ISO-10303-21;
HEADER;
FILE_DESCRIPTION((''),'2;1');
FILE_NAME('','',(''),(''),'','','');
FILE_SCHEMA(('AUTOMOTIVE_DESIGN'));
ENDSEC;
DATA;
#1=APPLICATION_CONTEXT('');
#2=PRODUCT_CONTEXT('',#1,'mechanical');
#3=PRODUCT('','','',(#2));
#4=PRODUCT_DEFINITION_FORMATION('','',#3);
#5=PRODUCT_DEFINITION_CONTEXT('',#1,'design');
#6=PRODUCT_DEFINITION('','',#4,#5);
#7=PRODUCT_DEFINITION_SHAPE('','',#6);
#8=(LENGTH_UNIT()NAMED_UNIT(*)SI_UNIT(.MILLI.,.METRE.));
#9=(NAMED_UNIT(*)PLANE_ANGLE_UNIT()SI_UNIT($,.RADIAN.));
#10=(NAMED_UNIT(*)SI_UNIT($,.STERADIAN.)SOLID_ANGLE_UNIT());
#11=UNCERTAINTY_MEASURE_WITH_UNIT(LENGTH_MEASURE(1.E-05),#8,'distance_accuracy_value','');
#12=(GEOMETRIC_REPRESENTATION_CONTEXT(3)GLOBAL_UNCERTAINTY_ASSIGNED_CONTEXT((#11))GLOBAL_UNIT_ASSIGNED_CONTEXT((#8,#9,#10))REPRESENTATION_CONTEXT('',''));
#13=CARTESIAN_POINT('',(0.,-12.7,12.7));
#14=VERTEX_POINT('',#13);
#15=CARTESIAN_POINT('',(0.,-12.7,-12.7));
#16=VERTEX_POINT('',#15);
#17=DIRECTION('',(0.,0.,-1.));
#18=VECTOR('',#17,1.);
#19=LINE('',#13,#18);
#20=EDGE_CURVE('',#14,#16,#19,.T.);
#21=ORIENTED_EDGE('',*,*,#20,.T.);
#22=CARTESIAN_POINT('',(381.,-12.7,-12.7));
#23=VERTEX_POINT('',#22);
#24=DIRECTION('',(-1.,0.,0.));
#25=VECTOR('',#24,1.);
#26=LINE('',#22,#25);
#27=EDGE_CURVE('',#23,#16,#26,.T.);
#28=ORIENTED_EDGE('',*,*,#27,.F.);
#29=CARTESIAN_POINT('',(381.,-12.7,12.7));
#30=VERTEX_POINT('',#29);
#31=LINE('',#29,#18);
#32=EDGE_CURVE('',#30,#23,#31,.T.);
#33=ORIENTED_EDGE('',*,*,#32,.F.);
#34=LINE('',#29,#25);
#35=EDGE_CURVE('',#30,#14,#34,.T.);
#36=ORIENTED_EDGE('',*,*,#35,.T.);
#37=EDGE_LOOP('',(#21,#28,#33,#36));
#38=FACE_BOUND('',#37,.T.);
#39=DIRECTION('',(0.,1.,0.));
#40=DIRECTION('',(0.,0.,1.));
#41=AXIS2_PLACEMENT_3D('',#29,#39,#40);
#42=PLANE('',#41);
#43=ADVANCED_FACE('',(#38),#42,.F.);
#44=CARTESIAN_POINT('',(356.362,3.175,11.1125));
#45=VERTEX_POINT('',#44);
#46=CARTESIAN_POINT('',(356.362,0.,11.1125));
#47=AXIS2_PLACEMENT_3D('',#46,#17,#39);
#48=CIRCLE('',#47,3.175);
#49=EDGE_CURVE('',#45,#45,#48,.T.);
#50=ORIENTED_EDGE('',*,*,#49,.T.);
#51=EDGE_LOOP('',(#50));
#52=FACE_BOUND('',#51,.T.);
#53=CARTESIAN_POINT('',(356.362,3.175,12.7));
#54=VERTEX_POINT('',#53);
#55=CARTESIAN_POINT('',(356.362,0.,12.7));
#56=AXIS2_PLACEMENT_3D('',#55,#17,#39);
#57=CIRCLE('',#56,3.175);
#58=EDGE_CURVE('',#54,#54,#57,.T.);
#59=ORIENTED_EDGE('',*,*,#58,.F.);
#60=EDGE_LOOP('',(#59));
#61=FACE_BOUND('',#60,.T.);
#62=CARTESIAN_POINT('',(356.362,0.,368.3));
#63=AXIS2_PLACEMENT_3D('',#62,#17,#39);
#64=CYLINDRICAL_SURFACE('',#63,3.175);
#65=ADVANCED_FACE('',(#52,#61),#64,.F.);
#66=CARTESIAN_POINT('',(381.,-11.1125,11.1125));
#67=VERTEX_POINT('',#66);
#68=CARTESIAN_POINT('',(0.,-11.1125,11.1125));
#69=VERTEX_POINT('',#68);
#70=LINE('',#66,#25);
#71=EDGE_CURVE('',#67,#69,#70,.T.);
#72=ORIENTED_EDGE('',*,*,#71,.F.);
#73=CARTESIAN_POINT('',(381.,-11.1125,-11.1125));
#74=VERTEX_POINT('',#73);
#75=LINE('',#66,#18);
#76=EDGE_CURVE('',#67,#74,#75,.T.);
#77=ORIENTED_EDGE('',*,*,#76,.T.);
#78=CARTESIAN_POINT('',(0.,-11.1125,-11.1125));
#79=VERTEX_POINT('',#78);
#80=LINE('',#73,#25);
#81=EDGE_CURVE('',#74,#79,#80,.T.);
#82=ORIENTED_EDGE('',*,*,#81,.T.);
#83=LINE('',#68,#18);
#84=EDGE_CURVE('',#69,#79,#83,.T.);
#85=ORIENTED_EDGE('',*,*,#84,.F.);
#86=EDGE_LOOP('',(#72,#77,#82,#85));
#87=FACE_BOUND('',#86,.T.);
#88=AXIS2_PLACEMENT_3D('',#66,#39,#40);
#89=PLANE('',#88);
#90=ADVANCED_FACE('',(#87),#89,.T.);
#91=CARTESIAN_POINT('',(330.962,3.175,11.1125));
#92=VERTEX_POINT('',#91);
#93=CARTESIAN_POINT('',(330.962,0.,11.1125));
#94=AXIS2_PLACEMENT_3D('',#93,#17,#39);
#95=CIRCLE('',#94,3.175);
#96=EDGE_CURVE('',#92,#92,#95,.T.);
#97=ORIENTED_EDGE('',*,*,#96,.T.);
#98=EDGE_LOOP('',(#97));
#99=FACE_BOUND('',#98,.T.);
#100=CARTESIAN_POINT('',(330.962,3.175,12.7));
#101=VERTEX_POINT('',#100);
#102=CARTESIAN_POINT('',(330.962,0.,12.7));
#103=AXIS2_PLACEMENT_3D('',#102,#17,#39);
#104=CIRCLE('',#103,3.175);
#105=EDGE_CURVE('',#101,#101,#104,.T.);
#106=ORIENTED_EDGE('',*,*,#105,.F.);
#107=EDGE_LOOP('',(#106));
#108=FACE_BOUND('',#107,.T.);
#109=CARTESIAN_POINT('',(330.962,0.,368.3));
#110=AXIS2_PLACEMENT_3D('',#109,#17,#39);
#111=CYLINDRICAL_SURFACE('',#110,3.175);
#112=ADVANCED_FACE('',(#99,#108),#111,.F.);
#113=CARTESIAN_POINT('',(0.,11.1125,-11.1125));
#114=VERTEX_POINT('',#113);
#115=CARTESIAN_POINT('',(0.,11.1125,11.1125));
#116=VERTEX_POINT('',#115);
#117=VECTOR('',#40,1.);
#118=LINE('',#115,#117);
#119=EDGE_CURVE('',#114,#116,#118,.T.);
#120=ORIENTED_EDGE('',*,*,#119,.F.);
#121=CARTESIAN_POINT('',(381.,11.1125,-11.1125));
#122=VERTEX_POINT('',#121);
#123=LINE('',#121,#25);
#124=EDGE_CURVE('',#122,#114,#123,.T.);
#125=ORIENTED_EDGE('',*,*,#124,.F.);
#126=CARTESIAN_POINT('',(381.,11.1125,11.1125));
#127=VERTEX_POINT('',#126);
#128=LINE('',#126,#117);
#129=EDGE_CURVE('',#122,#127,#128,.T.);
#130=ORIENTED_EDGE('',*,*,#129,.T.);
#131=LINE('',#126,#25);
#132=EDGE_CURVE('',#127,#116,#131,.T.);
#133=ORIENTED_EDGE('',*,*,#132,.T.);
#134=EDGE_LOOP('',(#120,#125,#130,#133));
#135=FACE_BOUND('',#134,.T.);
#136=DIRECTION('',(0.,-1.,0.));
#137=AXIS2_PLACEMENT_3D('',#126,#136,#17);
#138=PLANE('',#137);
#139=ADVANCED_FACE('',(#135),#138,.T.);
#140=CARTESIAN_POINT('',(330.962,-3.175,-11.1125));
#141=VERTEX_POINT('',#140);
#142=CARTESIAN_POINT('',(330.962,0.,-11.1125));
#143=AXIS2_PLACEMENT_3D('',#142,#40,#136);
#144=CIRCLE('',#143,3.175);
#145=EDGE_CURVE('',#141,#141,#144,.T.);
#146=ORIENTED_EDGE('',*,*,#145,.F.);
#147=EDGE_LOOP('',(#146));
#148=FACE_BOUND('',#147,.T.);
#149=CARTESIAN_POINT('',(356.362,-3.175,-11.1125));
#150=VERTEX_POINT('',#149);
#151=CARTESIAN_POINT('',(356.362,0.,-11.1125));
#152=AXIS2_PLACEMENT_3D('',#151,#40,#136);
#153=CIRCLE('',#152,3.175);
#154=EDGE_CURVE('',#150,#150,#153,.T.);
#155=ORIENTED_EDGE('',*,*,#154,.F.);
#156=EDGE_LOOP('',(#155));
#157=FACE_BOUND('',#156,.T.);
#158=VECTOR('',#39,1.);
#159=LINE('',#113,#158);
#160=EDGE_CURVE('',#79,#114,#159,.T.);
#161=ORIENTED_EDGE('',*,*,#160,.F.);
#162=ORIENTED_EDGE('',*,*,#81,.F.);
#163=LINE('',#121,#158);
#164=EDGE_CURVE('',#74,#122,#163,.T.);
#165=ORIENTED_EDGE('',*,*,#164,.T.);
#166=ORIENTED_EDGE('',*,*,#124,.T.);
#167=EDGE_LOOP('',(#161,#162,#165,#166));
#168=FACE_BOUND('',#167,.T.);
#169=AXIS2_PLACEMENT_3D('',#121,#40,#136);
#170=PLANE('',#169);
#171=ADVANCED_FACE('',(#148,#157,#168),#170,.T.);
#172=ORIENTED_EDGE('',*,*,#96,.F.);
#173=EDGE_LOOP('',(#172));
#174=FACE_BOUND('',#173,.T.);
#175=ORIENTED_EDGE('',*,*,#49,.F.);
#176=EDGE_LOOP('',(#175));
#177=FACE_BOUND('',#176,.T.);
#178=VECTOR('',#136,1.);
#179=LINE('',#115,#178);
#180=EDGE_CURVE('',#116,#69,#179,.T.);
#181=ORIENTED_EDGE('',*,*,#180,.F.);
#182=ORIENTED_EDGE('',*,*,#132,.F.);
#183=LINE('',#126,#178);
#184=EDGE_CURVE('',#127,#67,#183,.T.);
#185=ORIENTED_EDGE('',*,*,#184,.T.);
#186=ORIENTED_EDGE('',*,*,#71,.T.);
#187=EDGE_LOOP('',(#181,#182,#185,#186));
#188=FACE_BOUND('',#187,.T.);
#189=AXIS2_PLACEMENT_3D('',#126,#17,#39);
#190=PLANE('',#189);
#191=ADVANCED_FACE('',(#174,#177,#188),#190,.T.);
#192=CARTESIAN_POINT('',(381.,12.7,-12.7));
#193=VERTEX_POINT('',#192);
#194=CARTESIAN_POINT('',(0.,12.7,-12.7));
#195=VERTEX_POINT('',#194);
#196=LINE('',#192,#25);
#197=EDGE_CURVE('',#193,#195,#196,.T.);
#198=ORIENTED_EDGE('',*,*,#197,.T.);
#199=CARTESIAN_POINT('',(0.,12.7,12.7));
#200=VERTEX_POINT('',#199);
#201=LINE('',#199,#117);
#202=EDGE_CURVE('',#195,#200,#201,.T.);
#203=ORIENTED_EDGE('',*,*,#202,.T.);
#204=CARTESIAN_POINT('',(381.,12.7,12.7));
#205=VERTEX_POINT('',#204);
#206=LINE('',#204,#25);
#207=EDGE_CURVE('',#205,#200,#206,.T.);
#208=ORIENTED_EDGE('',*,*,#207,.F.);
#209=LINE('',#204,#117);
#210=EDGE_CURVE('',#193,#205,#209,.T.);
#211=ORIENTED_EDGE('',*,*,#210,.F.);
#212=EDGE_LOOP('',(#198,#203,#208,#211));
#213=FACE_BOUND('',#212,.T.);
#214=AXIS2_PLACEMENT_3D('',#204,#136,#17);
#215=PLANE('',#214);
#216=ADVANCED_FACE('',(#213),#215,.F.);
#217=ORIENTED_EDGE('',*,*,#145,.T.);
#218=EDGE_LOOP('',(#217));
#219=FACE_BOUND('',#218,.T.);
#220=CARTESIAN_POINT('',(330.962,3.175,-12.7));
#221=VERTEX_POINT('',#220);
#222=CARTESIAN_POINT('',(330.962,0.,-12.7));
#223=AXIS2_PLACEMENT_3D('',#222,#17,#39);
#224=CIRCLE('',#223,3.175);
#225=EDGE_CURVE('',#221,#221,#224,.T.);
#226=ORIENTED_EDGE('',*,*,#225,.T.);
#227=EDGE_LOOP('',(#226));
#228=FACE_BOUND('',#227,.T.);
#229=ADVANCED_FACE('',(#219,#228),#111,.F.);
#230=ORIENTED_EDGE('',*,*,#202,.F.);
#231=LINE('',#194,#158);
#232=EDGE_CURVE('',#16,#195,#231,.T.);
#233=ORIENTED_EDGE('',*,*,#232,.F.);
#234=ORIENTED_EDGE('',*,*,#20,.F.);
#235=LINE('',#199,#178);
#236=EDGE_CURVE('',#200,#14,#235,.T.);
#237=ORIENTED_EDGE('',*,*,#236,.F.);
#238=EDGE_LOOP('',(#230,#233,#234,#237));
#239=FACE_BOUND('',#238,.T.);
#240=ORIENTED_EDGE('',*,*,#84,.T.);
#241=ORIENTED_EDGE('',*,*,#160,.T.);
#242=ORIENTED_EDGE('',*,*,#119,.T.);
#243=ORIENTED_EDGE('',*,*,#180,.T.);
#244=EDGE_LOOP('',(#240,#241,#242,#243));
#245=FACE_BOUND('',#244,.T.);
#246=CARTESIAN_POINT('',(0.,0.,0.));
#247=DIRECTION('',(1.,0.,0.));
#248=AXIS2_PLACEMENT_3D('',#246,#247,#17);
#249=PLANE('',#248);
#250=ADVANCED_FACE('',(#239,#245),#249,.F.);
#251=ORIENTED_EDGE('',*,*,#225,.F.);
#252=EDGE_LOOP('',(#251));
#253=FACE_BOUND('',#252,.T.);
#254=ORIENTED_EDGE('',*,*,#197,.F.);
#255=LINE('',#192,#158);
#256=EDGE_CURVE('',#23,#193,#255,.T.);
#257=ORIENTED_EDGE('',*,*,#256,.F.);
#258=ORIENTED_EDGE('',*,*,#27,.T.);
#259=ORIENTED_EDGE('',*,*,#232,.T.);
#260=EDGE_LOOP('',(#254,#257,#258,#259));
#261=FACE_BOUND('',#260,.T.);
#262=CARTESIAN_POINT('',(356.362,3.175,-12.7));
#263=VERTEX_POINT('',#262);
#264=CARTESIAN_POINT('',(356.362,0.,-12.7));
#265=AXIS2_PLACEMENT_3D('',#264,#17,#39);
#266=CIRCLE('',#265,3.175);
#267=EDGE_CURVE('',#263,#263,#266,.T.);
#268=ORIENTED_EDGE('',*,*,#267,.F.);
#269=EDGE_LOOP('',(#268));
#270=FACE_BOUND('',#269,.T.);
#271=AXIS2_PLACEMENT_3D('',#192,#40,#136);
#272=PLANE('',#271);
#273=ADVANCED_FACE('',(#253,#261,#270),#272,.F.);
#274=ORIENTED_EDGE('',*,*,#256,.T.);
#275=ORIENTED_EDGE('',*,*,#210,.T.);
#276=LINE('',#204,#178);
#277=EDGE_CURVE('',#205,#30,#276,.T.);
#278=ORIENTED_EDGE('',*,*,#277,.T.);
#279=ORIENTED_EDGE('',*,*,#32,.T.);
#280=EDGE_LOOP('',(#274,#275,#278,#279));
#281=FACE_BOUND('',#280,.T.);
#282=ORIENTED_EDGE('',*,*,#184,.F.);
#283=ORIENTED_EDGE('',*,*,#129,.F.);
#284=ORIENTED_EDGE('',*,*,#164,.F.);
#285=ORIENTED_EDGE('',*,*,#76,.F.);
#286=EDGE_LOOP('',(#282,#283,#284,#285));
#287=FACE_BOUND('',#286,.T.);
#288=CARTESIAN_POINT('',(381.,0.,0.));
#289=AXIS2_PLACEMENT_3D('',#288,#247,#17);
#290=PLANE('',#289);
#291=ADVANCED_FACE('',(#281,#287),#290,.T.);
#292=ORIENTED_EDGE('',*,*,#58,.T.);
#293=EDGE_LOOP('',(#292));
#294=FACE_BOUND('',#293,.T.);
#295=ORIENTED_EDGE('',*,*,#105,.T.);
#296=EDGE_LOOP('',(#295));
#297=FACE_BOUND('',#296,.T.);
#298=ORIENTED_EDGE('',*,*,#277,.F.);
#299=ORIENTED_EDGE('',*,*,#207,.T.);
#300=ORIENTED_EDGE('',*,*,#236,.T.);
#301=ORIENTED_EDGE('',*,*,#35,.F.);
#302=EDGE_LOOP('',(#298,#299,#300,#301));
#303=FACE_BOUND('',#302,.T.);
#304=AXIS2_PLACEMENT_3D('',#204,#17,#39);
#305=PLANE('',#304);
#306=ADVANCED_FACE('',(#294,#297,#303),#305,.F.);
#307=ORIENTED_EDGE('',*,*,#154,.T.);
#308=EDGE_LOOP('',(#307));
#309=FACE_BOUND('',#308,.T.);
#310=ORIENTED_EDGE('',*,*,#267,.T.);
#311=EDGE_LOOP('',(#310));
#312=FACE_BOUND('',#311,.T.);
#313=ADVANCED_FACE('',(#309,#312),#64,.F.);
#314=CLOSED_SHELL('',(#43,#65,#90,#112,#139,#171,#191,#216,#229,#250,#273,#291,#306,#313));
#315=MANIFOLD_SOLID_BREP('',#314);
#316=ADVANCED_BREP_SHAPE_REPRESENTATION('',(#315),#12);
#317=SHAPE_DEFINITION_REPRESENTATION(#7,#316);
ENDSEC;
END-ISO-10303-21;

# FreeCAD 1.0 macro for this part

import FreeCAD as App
import Part
import Sketcher
from FreeCAD import Vector
Q = App.Units.Quantity


def add_polygon(sketch, points):
    """Adds a closed chain of lines whose ends are joined by coincident constraints."""
    first, n = sketch.GeometryCount, len(points)
    for a, b in zip(points, points[1:] + points[:1]):
        sketch.addGeometry(Part.LineSegment(App.Vector(*a, 0), App.Vector(*b, 0)), False)
    for i in range(n):
        sketch.addConstraint(Sketcher.Constraint("Coincident", first + i, 2, first + (i + 1) % n, 1))

doc = App.newDocument("Part")
params = doc.addObject("Spreadsheet::Sheet", "Params")
for row, (alias, value) in enumerate([
    ("sketch1_width", "1 in"),
    ("sketch1_width2", "0.875 in"),
    ("pad1_length", "15 in"),
    ("sketch2_diameter", "0.25 in"),
    ("pocket1_length", "15 in"),
], start=1):
    params.set(f"A{row}", alias)
    params.set(f"B{row}", "=" + value)
    params.setAlias(f"B{row}", alias)

body = doc.addObject("PartDesign::Body", "Body")

# Sketch on YZ plane
sketch1 = body.newObject("Sketcher::SketchObject", "Sketch")
sketch1.AttachmentSupport = (doc.getObject("YZ_Plane"), [""])
sketch1.MapMode = "FlatFace"
add_polygon(sketch1, [(13, 13), (-13, 13), (-13, -13), (13, -13)])  # lines 0-3
add_polygon(sketch1, [(-11, -11), (-11, 11), (11, 11), (11, -11)])  # lines 4-7
sketch1.addConstraint(Sketcher.Constraint("Horizontal", 0))
sketch1.addConstraint(Sketcher.Constraint("Vertical", 1))
sketch1.addConstraint(Sketcher.Constraint("Horizontal", 2))
sketch1.addConstraint(Sketcher.Constraint("Vertical", 3))
sketch1.addConstraint(Sketcher.Constraint("Vertical", 4))
sketch1.addConstraint(Sketcher.Constraint("Horizontal", 5))
sketch1.addConstraint(Sketcher.Constraint("Vertical", 6))
sketch1.addConstraint(Sketcher.Constraint("Horizontal", 7))
sketch1.addConstraint(Sketcher.Constraint("Symmetric", 0, 2, 2, 2, -1, 1))
sketch1.addConstraint(Sketcher.Constraint("Symmetric", 4, 2, 6, 2, -1, 1))
sketch1.addConstraint(Sketcher.Constraint("Equal", 2, 1))
sketch1.addConstraint(Sketcher.Constraint("Equal", 7, 4))
sketch1.addConstraint(Sketcher.Constraint("DistanceX", 0, 2, 0, 1, Q("1 in")))
sketch1.addConstraint(Sketcher.Constraint("DistanceX", 5, 1, 5, 2, Q("0.875 in")))
sketch1.setExpression("Constraints[20]", "Params.sketch1_width")
sketch1.setExpression("Constraints[21]", "Params.sketch1_width2")
pad1 = body.newObject("PartDesign::Pad", "Pad")
pad1.Profile = sketch1
pad1.setExpression("Length", "Params.pad1_length")

# Sketch on XY plane
sketch2 = body.newObject("Sketcher::SketchObject", "Sketch001")
sketch2.AttachmentSupport = (doc.getObject("XY_Plane"), [""])
sketch2.MapMode = "FlatFace"
sketch2.AttachmentOffset = App.Placement(Vector(0, 0, -0.5 * 25.4), App.Rotation())
sketch2.addGeometry(Part.Circle(Vector(356.4, 0, 0), Vector(0, 0, 1), 3.2), False)
sketch2.addGeometry(Part.Circle(Vector(331, 0, 0), Vector(0, 0, 1), 3.2), False)
sketch2.addConstraint(Sketcher.Constraint("Equal", 0, 1))
sketch2.addConstraint(Sketcher.Constraint("PointOnObject", 0, 3, -1))
sketch2.addConstraint(Sketcher.Constraint("PointOnObject", 1, 3, -1))
sketch2.addConstraint(Sketcher.Constraint("Diameter", 0, Q("0.25 in")))
sketch2.addConstraint(Sketcher.Constraint("DistanceX", 1, 3, 0, 3, Q("1 in")))
sketch2.addConstraint(Sketcher.Constraint("DistanceX", -1, 1, 0, 3, Q("14.03 in")))
sketch2.setExpression("Constraints[3]", "Params.sketch2_diameter")
pocket1 = body.newObject("PartDesign::Pocket", "Pocket")
pocket1.Profile = sketch2
pocket1.setExpression("Length", "Params.pocket1_length")
pocket1.Reversed = True

doc.recompute()
